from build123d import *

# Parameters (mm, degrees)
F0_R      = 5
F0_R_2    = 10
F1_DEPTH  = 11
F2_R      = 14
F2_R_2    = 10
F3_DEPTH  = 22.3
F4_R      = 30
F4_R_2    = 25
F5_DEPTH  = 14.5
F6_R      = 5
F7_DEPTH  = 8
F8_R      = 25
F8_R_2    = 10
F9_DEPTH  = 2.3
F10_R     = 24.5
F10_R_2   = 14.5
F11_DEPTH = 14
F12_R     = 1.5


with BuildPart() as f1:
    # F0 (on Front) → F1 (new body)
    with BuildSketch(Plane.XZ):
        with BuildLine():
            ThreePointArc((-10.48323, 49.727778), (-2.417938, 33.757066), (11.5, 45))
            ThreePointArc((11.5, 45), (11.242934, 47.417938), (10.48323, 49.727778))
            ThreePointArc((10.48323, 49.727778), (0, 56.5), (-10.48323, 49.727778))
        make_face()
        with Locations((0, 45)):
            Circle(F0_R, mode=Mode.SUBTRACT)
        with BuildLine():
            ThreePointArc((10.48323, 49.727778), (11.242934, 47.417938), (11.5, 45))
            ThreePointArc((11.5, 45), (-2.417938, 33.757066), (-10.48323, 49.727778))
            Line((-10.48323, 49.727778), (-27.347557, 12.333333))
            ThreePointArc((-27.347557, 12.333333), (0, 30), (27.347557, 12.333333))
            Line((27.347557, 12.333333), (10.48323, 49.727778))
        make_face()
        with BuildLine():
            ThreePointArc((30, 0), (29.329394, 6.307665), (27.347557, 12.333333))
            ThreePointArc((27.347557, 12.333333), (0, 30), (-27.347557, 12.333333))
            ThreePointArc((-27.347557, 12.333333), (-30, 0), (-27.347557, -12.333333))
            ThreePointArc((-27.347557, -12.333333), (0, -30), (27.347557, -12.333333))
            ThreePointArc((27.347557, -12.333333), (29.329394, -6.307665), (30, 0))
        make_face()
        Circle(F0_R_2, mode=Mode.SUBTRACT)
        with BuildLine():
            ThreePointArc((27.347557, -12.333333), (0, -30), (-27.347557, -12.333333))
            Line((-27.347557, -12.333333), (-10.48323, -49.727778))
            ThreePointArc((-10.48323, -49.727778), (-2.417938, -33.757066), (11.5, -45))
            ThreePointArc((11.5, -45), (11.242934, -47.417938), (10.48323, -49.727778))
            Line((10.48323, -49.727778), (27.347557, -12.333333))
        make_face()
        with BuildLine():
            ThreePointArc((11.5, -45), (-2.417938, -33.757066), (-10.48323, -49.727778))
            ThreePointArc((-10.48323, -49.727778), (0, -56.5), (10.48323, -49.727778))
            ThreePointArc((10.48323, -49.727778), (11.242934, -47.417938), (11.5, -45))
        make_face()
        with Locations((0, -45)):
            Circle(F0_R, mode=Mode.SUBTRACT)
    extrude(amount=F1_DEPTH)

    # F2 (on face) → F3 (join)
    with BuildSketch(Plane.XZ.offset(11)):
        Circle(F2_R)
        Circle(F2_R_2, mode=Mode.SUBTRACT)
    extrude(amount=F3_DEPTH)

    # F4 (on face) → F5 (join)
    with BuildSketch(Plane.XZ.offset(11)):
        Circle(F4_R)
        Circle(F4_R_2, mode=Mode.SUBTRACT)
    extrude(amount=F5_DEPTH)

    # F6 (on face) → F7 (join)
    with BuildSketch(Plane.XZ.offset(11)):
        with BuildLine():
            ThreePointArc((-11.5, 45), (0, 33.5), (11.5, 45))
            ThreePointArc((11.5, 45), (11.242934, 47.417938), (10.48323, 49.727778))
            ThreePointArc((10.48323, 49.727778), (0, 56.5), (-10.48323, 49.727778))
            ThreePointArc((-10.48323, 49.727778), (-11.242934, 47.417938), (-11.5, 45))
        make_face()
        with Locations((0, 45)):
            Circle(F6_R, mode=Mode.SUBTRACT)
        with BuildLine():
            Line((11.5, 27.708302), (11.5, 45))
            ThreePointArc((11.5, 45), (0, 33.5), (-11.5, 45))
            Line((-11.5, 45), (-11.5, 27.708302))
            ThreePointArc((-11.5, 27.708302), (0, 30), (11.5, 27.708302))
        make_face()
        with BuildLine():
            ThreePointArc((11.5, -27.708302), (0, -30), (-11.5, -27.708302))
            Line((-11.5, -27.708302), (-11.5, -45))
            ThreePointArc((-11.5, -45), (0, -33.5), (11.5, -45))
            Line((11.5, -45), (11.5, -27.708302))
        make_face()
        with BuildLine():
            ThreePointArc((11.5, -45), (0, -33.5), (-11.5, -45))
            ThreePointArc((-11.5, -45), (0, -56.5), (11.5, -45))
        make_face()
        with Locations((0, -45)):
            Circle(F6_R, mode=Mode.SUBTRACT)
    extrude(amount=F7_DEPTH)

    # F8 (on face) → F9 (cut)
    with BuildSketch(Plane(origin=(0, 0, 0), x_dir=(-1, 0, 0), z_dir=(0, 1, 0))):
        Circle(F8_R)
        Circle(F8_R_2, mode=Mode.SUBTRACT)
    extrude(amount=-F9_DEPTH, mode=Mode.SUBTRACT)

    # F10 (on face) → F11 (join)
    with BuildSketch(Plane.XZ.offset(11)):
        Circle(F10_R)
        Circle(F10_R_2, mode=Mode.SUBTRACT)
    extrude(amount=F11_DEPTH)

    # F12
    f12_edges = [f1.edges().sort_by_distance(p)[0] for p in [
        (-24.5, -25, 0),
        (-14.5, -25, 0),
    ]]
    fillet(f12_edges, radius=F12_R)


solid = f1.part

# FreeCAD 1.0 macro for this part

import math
import FreeCAD as App
import Part
import Sketcher
from FreeCAD import Vector
Q = App.Units.Quantity


def edges_at(feature, points):
    """Names of the edges that pass closest to the given points."""
    edges = feature.Shape.Edges
    near = lambda p: min(range(len(edges)), key=lambda i: edges[i].distToShape(Part.Vertex(*p))[0])
    return sorted({f"Edge{near(p) + 1}" for p in points})

doc = App.newDocument("Part")
body = doc.addObject("PartDesign::Body", "Body")

# Sketch on XZ plane
sketch1 = body.newObject("Sketcher::SketchObject", "Sketch")
sketch1.AttachmentSupport = (doc.getObject("XZ_Plane"), [""])
sketch1.MapMode = "FlatFace"
sketch1.addGeometry([
    Part.ArcOfCircle(Part.Circle(Vector(0, 45, 0), Vector(0, 0, 1), 11), math.radians(24), math.radians(156)),  # 0
    Part.LineSegment(Vector(-10, 50, 0), Vector(-27, 12, 0)),  # 1
    Part.ArcOfCircle(Part.Circle(Vector(0, 0, 0), Vector(0, 0, 1), 30), math.radians(156), math.radians(204)),  # 2
    Part.LineSegment(Vector(-27, -12, 0), Vector(-10, -50, 0)),  # 3
    Part.ArcOfCircle(Part.Circle(Vector(0, -45, 0), Vector(0, 0, 1), 11), math.radians(-156), math.radians(-24)),  # 4
    Part.LineSegment(Vector(10, -50, 0), Vector(27, -12, 0)),  # 5
    Part.ArcOfCircle(Part.Circle(Vector(0, 0, 0), Vector(0, 0, 1), 30), math.radians(-24), math.radians(0)),  # 6
    Part.ArcOfCircle(Part.Circle(Vector(0, 0, 0), Vector(0, 0, 1), 30), math.radians(0), math.radians(24)),  # 7
    Part.LineSegment(Vector(27, 12, 0), Vector(10, 50, 0)),  # 8
    Part.Circle(Vector(0, -45, 0), Vector(0, 0, 1), 5),  # 9
    Part.Circle(Vector(0, 0, 0), Vector(0, 0, 1), 10),  # 10
    Part.Circle(Vector(0, 45, 0), Vector(0, 0, 1), 5),  # 11
], False)
sketch1.addConstraint([
    Sketcher.Constraint("Tangent", 0, 2, 1, 1),
    Sketcher.Constraint("Tangent", 1, 2, 2, 1),
    Sketcher.Constraint("Tangent", 2, 2, 3, 1),
    Sketcher.Constraint("Tangent", 3, 2, 4, 1),
    Sketcher.Constraint("Tangent", 4, 2, 5, 1),
    Sketcher.Constraint("Tangent", 5, 2, 6, 1),
    Sketcher.Constraint("Tangent", 6, 2, 7, 1),
    Sketcher.Constraint("Tangent", 7, 2, 8, 1),
    Sketcher.Constraint("Tangent", 8, 2, 0, 1),
    Sketcher.Constraint("Coincident", 2, 3, -1, 1),
    Sketcher.Constraint("Coincident", 6, 3, -1, 1),
    Sketcher.Constraint("Coincident", 10, 3, -1, 1),
    Sketcher.Constraint("Coincident", 9, 3, 4, 3),
    Sketcher.Constraint("Coincident", 11, 3, 0, 3),
    Sketcher.Constraint("Equal", 0, 4),
    Sketcher.Constraint("Equal", 6, 7),
    Sketcher.Constraint("Equal", 9, 11),
    Sketcher.Constraint("Symmetric", 0, 3, 4, 3, -1, 1),
    Sketcher.Constraint("Symmetric", 3, 2, 4, 2, -2),
    Sketcher.Constraint("PointOnObject", 6, 2, -1),
    Sketcher.Constraint("Diameter", 9, Q("10 mm")),
    Sketcher.Constraint("Diameter", 10, Q("20 mm")),
    Sketcher.Constraint("Radius", 6, Q("29.999999 mm")),
    Sketcher.Constraint("Radius", 0, Q("11.5 mm")),
    Sketcher.Constraint("DistanceY", -1, 1, 0, 3, Q("45 mm")),
])
pad1 = body.newObject("PartDesign::Pad", "Pad")
pad1.Profile = sketch1
pad1.Length = 11

# Sketch on XZ plane
sketch2 = body.newObject("Sketcher::SketchObject", "Sketch001")
sketch2.AttachmentSupport = (doc.getObject("XZ_Plane"), [""])
sketch2.MapMode = "FlatFace"
sketch2.AttachmentOffset = App.Placement(Vector(0, 0, 11), App.Rotation())
sketch2.addGeometry([
    Part.Circle(Vector(0, 0, 0), Vector(0, 0, 1), 14),
    Part.Circle(Vector(0, 0, 0), Vector(0, 0, 1), 10),
], False)
sketch2.addConstraint([
    Sketcher.Constraint("Coincident", 0, 3, -1, 1),
    Sketcher.Constraint("Coincident", 1, 3, -1, 1),
    Sketcher.Constraint("Diameter", 0, Q("28 mm")),
    Sketcher.Constraint("Diameter", 1, Q("20 mm")),
])
pad2 = body.newObject("PartDesign::Pad", "Pad001")
pad2.Profile = sketch2
pad2.Length = 22.3

# Sketch on XZ plane
sketch3 = body.newObject("Sketcher::SketchObject", "Sketch002")
sketch3.AttachmentSupport = (doc.getObject("XZ_Plane"), [""])
sketch3.MapMode = "FlatFace"
sketch3.AttachmentOffset = App.Placement(Vector(0, 0, 11), App.Rotation())
sketch3.addGeometry([
    Part.Circle(Vector(0, 0, 0), Vector(0, 0, 1), 30),
    Part.Circle(Vector(0, 0, 0), Vector(0, 0, 1), 25),
], False)
sketch3.addConstraint([
    Sketcher.Constraint("Coincident", 0, 3, -1, 1),
    Sketcher.Constraint("Coincident", 1, 3, -1, 1),
    Sketcher.Constraint("Diameter", 0, Q("60 mm")),
    Sketcher.Constraint("Diameter", 1, Q("50 mm")),
])
pad3 = body.newObject("PartDesign::Pad", "Pad002")
pad3.Profile = sketch3
pad3.Length = 14.5

# Sketch on XZ plane
sketch4 = body.newObject("Sketcher::SketchObject", "Sketch003")
sketch4.AttachmentSupport = (doc.getObject("XZ_Plane"), [""])
sketch4.MapMode = "FlatFace"
sketch4.AttachmentOffset = App.Placement(Vector(0, 0, 11), App.Rotation())
sketch4.addGeometry([
    Part.ArcOfCircle(Part.Circle(Vector(0, 45, 0), Vector(0, 0, 1), 11.5), math.radians(156), math.radians(180)),  # 0
    Part.LineSegment(Vector(-11.5, 45, 0), Vector(-11.5, 27.7, 0)),  # 1
    Part.ArcOfCircle(Part.Circle(Vector(0, 0, 0), Vector(0, 0, 1), 30), math.radians(67), math.radians(113)),  # 2
    Part.LineSegment(Vector(11.5, 27.7, 0), Vector(11.5, 45, 0)),  # 3
    Part.ArcOfCircle(Part.Circle(Vector(0, 45, 0), Vector(0, 0, 1), 11.5), math.radians(0), math.radians(24)),  # 4
    Part.ArcOfCircle(Part.Circle(Vector(0, 45, 0), Vector(0, 0, 1), 11.5), math.radians(24), math.radians(156)),  # 5
    Part.Circle(Vector(0, 45, 0), Vector(0, 0, 1), 5),  # 6
    Part.ArcOfCircle(Part.Circle(Vector(0, 0, 0), Vector(0, 0, 1), 30), math.radians(-113), math.radians(-67)),  # 7
    Part.LineSegment(Vector(-11.5, -27.7, 0), Vector(-11.5, -45, 0)),  # 8
    Part.ArcOfCircle(Part.Circle(Vector(0, -45, 0), Vector(0, 0, 1), 11.5), math.radians(180), math.radians(360)),  # 9
    Part.LineSegment(Vector(11.5, -45, 0), Vector(11.5, -27.7, 0)),  # 10
    Part.Circle(Vector(0, -45, 0), Vector(0, 0, 1), 5),  # 11
], False)
sketch4.addConstraint([
    Sketcher.Constraint("Tangent", 0, 2, 1, 1),
    Sketcher.Constraint("Coincident", 1, 2, 2, 2),
    Sketcher.Constraint("Coincident", 2, 1, 3, 1),
    Sketcher.Constraint("Tangent", 3, 2, 4, 1),
    Sketcher.Constraint("Tangent", 4, 2, 5, 1),
    Sketcher.Constraint("Tangent", 5, 2, 0, 1),
    Sketcher.Constraint("Coincident", 7, 1, 8, 1),
    Sketcher.Constraint("Tangent", 8, 2, 9, 1),
    Sketcher.Constraint("Tangent", 9, 2, 10, 1),
    Sketcher.Constraint("Coincident", 10, 2, 7, 2),
    Sketcher.Constraint("Vertical", 1),
    Sketcher.Constraint("Vertical", 3),
    Sketcher.Constraint("Vertical", 8),
    Sketcher.Constraint("Vertical", 10),
    Sketcher.Constraint("Coincident", 2, 3, -1, 1),
    Sketcher.Constraint("Coincident", 7, 3, -1, 1),
    Sketcher.Constraint("Coincident", 6, 3, 5, 3),
    Sketcher.Constraint("Coincident", 11, 3, 9, 3),
    Sketcher.Constraint("Equal", 0, 4),
    Sketcher.Constraint("Equal", 2, 7),
    Sketcher.Constraint("Equal", 5, 9),
    Sketcher.Constraint("Equal", 6, 11),
    Sketcher.Constraint("Symmetric", 5, 3, 9, 3, -1, 1),
    Sketcher.Constraint("Symmetric", 4, 2, 5, 2, -2),
    Sketcher.Constraint("Horizontal", 6, 3, 0, 2),
    Sketcher.Constraint("Diameter", 6, Q("10 mm")),
    Sketcher.Constraint("Radius", 2, Q("30 mm")),
    Sketcher.Constraint("Radius", 5, Q("11.5 mm")),
    Sketcher.Constraint("DistanceY", -1, 1, 5, 3, Q("45 mm")),
    Sketcher.Constraint("DistanceX", -1, 1, 4, 2, Q("10.48323 mm")),
])
pad4 = body.newObject("PartDesign::Pad", "Pad003")
pad4.Profile = sketch4
pad4.Length = 8

# Sketch on XZ plane
sketch5 = body.newObject("Sketcher::SketchObject", "Sketch004")
sketch5.AttachmentSupport = (doc.getObject("XZ_Plane"), [""])
sketch5.MapMode = "FlatFace"
sketch5.addGeometry([
    Part.Circle(Vector(0, 0, 0), Vector(0, 0, 1), 25),
    Part.Circle(Vector(0, 0, 0), Vector(0, 0, 1), 10),
], False)
sketch5.addConstraint([
    Sketcher.Constraint("Coincident", 0, 3, -1, 1),
    Sketcher.Constraint("Coincident", 1, 3, -1, 1),
    Sketcher.Constraint("Diameter", 0, Q("50 mm")),
    Sketcher.Constraint("Diameter", 1, Q("20 mm")),
])
pocket1 = body.newObject("PartDesign::Pocket", "Pocket")
pocket1.Profile = sketch5
pocket1.Length = 2.3
pocket1.Reversed = True

# Sketch on XZ plane
sketch6 = body.newObject("Sketcher::SketchObject", "Sketch005")
sketch6.AttachmentSupport = (doc.getObject("XZ_Plane"), [""])
sketch6.MapMode = "FlatFace"
sketch6.AttachmentOffset = App.Placement(Vector(0, 0, 11), App.Rotation())
sketch6.addGeometry([
    Part.Circle(Vector(0, 0, 0), Vector(0, 0, 1), 24),
    Part.Circle(Vector(0, 0, 0), Vector(0, 0, 1), 14),
], False)
sketch6.addConstraint([
    Sketcher.Constraint("Coincident", 0, 3, -1, 1),
    Sketcher.Constraint("Coincident", 1, 3, -1, 1),
    Sketcher.Constraint("Diameter", 0, Q("49 mm")),
    Sketcher.Constraint("Diameter", 1, Q("29 mm")),
])
pad5 = body.newObject("PartDesign::Pad", "Pad004")
pad5.Profile = sketch6
pad5.Length = 14
doc.recompute()

fillet = body.newObject("PartDesign::Fillet", "Fillet")
fillet.Base = (pad5, edges_at(pad5, [(-24.5, -25, 0), (-14.5, -25, 0)]))
fillet.Radius = 1.5

doc.recompute()
